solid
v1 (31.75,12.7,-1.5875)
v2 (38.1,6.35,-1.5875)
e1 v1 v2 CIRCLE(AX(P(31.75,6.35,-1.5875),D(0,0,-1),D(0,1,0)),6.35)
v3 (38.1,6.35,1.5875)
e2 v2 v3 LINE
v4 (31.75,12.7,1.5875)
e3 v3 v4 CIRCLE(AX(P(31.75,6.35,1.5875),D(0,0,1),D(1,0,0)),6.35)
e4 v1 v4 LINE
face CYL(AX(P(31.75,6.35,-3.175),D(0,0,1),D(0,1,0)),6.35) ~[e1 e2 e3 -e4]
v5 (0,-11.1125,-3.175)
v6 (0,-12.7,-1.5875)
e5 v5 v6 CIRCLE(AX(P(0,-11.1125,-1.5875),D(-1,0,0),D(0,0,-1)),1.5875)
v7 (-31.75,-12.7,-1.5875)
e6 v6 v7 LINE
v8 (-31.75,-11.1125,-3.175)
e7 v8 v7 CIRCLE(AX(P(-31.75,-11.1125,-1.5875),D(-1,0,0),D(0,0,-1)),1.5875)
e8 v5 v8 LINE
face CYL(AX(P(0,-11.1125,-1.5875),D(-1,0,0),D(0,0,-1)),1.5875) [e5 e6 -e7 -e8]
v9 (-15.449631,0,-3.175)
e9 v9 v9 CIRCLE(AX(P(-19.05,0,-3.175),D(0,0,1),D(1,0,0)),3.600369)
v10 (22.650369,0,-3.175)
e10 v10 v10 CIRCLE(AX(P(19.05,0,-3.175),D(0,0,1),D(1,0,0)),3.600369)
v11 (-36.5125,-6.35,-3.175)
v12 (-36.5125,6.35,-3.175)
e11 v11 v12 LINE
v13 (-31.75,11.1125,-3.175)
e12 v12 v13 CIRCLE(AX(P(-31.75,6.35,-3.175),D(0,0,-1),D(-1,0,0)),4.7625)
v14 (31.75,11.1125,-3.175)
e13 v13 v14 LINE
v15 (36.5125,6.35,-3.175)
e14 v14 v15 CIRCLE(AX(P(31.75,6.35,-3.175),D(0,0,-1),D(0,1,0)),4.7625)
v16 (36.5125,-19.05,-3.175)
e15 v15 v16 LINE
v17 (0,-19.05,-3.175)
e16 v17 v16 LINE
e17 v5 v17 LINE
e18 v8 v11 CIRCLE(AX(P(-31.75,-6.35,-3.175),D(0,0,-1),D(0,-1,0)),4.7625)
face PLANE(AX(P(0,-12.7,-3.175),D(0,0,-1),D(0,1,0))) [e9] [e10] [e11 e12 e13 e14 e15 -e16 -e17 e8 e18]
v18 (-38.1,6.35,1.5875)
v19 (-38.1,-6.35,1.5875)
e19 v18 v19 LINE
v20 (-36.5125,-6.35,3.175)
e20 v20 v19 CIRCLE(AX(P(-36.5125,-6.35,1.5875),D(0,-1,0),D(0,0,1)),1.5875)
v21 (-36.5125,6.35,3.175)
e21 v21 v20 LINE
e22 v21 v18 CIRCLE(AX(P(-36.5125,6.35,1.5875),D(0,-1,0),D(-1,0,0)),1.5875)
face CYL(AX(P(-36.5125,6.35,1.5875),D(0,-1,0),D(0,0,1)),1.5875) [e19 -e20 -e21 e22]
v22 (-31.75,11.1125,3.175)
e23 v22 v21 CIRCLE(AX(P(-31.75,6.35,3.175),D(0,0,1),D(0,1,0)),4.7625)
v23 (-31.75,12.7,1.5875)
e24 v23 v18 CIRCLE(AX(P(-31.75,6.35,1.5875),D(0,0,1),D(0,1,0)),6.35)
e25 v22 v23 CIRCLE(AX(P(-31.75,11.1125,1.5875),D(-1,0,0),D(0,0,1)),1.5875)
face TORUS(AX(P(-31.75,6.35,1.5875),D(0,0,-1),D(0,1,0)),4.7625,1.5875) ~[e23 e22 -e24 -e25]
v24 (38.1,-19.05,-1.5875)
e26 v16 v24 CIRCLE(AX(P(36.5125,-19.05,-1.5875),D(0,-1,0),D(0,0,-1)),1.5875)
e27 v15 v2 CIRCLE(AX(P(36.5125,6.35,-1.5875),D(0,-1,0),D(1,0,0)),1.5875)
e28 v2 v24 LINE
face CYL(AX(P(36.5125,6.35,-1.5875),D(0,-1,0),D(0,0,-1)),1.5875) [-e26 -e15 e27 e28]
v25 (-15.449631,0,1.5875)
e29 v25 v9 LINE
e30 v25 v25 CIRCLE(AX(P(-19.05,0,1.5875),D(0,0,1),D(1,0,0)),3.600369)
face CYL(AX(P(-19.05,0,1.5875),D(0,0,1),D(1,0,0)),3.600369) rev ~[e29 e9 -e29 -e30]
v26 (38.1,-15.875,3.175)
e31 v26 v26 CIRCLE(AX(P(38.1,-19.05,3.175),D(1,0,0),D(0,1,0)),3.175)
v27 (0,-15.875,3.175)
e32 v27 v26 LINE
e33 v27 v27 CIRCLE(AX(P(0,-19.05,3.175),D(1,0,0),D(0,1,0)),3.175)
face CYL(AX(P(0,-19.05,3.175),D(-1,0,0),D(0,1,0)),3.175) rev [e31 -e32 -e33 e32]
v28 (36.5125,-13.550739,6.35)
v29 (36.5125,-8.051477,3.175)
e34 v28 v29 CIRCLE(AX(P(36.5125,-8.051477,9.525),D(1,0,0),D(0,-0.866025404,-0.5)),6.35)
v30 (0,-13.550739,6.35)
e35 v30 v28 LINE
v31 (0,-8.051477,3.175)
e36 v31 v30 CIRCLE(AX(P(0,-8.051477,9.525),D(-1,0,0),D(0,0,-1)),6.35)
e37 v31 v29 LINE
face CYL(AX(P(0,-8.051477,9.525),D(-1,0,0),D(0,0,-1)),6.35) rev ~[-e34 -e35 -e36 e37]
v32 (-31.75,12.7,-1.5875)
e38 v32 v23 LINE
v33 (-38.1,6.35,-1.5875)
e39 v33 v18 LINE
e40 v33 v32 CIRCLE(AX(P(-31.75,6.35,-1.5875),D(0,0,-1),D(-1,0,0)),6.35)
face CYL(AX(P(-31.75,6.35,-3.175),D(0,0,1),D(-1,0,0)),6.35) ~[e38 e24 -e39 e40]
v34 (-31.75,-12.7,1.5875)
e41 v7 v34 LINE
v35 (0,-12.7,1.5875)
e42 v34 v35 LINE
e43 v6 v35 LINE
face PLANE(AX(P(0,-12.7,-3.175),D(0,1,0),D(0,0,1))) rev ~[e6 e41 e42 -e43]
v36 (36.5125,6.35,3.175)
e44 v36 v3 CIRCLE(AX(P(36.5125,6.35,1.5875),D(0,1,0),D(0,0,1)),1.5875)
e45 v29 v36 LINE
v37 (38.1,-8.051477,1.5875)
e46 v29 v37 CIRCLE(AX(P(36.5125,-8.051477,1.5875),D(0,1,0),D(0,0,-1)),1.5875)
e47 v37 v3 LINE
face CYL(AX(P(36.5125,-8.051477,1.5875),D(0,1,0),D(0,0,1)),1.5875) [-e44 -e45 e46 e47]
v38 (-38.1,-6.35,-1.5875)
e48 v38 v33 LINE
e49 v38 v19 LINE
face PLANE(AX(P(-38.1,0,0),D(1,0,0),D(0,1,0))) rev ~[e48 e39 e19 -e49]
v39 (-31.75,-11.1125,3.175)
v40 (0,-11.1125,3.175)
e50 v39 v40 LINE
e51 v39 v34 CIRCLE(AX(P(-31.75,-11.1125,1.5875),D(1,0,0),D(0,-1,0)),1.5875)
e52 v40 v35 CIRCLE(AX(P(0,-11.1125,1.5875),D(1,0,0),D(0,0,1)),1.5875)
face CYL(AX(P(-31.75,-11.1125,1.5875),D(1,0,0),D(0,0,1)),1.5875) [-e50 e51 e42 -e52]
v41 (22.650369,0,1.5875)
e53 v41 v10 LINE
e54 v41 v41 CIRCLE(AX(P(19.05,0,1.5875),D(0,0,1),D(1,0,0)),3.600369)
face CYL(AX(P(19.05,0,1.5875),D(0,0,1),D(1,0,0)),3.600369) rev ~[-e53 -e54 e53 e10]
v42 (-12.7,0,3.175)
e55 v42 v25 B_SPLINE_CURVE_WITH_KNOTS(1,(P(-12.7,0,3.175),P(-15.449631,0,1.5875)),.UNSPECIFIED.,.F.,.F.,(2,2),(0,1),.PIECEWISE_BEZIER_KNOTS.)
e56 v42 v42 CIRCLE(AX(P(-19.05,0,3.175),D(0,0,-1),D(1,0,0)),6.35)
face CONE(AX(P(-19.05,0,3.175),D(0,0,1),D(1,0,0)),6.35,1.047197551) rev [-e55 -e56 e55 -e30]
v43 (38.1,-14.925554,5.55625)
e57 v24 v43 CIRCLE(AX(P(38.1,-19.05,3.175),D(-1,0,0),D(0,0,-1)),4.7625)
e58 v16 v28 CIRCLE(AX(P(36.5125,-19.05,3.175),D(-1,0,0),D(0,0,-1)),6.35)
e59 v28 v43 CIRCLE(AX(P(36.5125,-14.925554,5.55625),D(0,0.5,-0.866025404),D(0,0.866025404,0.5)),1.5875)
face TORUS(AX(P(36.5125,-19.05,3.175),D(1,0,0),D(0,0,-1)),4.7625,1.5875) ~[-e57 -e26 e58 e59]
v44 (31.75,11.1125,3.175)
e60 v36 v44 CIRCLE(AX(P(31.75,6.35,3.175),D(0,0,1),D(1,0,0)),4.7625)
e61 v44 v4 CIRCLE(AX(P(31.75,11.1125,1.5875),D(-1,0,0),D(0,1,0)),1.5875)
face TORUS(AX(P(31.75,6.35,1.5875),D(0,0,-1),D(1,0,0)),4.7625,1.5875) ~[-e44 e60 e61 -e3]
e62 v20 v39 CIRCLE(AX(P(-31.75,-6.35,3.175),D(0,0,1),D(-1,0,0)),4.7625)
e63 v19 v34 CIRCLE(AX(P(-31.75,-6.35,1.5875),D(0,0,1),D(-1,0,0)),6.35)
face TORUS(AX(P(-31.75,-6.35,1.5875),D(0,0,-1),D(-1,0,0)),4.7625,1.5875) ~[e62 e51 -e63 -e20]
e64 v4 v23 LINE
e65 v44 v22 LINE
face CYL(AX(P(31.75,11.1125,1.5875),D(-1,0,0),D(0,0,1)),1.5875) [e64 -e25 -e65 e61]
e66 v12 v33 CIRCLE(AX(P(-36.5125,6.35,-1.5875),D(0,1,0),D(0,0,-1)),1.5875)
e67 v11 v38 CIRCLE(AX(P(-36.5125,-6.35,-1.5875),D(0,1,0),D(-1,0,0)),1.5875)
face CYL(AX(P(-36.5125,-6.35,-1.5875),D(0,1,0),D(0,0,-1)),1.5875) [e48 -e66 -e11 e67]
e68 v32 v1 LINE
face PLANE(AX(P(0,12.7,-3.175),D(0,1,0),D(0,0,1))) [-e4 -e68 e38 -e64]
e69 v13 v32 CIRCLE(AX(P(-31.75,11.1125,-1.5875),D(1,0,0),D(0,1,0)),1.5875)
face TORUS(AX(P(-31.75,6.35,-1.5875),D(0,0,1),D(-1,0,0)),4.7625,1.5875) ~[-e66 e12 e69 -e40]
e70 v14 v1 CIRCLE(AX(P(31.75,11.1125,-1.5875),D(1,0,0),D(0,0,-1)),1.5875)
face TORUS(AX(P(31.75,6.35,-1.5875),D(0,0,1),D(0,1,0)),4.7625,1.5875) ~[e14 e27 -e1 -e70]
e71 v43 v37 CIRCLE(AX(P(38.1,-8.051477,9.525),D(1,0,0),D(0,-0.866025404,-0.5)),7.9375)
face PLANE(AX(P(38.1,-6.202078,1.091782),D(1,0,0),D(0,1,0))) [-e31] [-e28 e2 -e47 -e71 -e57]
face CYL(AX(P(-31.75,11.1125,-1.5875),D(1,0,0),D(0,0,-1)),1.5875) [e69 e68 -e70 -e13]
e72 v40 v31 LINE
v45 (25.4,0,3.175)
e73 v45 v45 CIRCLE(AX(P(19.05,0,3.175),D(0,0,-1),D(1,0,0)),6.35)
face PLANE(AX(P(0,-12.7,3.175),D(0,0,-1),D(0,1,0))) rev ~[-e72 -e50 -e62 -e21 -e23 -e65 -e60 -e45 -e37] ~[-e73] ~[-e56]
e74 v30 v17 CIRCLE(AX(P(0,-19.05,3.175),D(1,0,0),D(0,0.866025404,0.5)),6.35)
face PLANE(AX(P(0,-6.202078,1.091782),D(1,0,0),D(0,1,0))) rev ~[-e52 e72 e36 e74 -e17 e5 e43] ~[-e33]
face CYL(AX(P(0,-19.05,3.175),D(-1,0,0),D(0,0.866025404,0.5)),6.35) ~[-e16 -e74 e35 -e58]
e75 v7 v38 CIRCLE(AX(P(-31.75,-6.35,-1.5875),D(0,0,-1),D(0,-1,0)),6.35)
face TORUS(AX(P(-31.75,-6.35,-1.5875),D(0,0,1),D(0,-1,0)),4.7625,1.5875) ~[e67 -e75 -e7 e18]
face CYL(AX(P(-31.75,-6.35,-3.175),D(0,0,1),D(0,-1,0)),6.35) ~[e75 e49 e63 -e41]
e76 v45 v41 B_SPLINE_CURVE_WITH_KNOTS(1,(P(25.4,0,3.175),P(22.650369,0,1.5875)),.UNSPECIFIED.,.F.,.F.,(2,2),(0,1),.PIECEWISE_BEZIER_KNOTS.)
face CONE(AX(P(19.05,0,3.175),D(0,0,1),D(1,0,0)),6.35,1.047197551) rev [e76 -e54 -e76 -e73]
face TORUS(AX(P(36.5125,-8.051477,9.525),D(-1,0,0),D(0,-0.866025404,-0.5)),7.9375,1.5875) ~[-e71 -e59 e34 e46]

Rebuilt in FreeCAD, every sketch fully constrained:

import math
import FreeCAD as App
import Part
import Sketcher
from FreeCAD import Vector
Q = App.Units.Quantity


def edges_at(feature, points):
    """Names of the edges that pass closest to the given points."""
    edges = feature.Shape.Edges
    near = lambda p: min(range(len(edges)), key=lambda i: edges[i].distToShape(Part.Vertex(*p))[0])
    return sorted({f"Edge{near(p) + 1}" for p in points})


def add_polygon(sketch, points):
    """Adds a closed chain of lines whose ends are joined by coincident constraints."""
    first, n = sketch.GeometryCount, len(points)
    for a, b in zip(points, points[1:] + points[:1]):
        sketch.addGeometry(Part.LineSegment(App.Vector(*a, 0), App.Vector(*b, 0)), False)
    for i in range(n):
        sketch.addConstraint(Sketcher.Constraint("Coincident", first + i, 2, first + (i + 1) % n, 1))

doc = App.newDocument("Part")
body = doc.addObject("PartDesign::Body", "Body")

# Sketch on YZ plane
sketch1 = body.newObject("Sketcher::SketchObject", "Sketch")
sketch1.AttachmentSupport = (doc.getObject("YZ_Plane"), [""])
sketch1.MapMode = "FlatFace"
sketch1.addGeometry([
    Part.LineSegment(Vector(12.7, -3.2, 0), Vector(12.7, 3.2, 0)),  # 0
    Part.LineSegment(Vector(12.7, 3.2, 0), Vector(-8.1, 3.2, 0)),  # 1
    Part.ArcOfCircle(Part.Circle(Vector(-8.1, 9.5, 0), Vector(0, 0, 1), 6.3), math.radians(-150), math.radians(-90)),  # 2
    Part.ArcOfCircle(Part.Circle(Vector(-19.1, 3.2, 0), Vector(0, 0, 1), 6.3), math.radians(30), math.radians(270)),  # 3
    Part.LineSegment(Vector(-19.1, -3.2, 0), Vector(12.7, -3.2, 0)),  # 4
    Part.Circle(Vector(-19.1, 3.2, 0), Vector(0, 0, 1), 3.2),  # 5
], False)
sketch1.addConstraint([
    Sketcher.Constraint("Coincident", 0, 2, 1, 1),
    Sketcher.Constraint("Tangent", 1, 2, 2, 2),
    Sketcher.Constraint("Tangent", 2, 1, 3, 1),
    Sketcher.Constraint("Tangent", 3, 2, 4, 1),
    Sketcher.Constraint("Coincident", 4, 2, 0, 1),
    Sketcher.Constraint("Vertical", 0),
    Sketcher.Constraint("Horizontal", 1),
    Sketcher.Constraint("Horizontal", 4),
    Sketcher.Constraint("Coincident", 5, 3, 3, 3),
    Sketcher.Constraint("Equal", 2, 3),
    Sketcher.Constraint("Horizontal", 5, 3, 0, 2),
    Sketcher.Constraint("Diameter", 5, Q("0.25 in")),
    Sketcher.Constraint("Radius", 2, Q("0.25 in")),
    Sketcher.Constraint("DistanceX", 4, 1, 4, 2, Q("1.25 in")),
    Sketcher.Constraint("DistanceX", -1, 1, 0, 2, Q("0.5 in")),
    Sketcher.Constraint("DistanceY", -1, 1, 2, 1, Q("0.25 in")),
])
pad1 = body.newObject("PartDesign::Pad", "Pad")
pad1.Profile = sketch1
pad1.Length = Q("1.5 in")

# Sketch on YZ plane
sketch2 = body.newObject("Sketcher::SketchObject", "Sketch001")
sketch2.AttachmentSupport = (doc.getObject("YZ_Plane"), [""])
sketch2.MapMode = "FlatFace"
add_polygon(sketch2, [(-13, 3), (-13, -3), (13, -3), (13, 3)])  # lines 0-3
sketch2.addConstraint([
    Sketcher.Constraint("Vertical", 0),
    Sketcher.Constraint("Horizontal", 1),
    Sketcher.Constraint("Vertical", 2),
    Sketcher.Constraint("Horizontal", 3),
    Sketcher.Constraint("Symmetric", 0, 2, 2, 2, -1, 1),
    Sketcher.Constraint("DistanceX", 1, 1, 1, 2, Q("1 in")),
    Sketcher.Constraint("DistanceY", 0, 2, 0, 1, Q("0.25 in")),
])
pad2 = body.newObject("PartDesign::Pad", "Pad001")
pad2.Profile = sketch2
pad2.Length = Q("1.5 in")
pad2.Reversed = True

# Sketch on XY plane
sketch3 = body.newObject("Sketcher::SketchObject", "Sketch002")
sketch3.AttachmentSupport = (doc.getObject("XY_Plane"), [""])
sketch3.MapMode = "FlatFace"
sketch3.AttachmentOffset = App.Placement(Vector(0, 0, 0.125 * 25.4), App.Rotation())
sketch3.addGeometry([
    Part.Circle(Vector(19, 0, 0), Vector(0, 0, 1), 6),
    Part.Circle(Vector(-19, 0, 0), Vector(0, 0, 1), 6),
], False)
sketch3.addConstraint([
    Sketcher.Constraint("Equal", 0, 1),
    Sketcher.Constraint("Symmetric", 0, 3, 1, 3, -1, 1),
    Sketcher.Constraint("PointOnObject", 0, 3, -1),
    Sketcher.Constraint("Diameter", 0, Q("0.5 in")),
    Sketcher.Constraint("DistanceX", 1, 3, 0, 3, Q("1.5 in")),
])
pocket1 = body.newObject("PartDesign::Pocket", "Pocket")
pocket1.Profile = sketch3
pocket1.Length = Q("0.0625 in")
pocket1.TaperAngle = -60

# Sketch on XY plane
sketch4 = body.newObject("Sketcher::SketchObject", "Sketch003")
sketch4.AttachmentSupport = (doc.getObject("XY_Plane"), [""])
sketch4.MapMode = "FlatFace"
sketch4.AttachmentOffset = App.Placement(Vector(0, 0, 0.0625 * 25.4), App.Rotation())
sketch4.addGeometry([
    Part.Circle(Vector(19.1, 0, 0), Vector(0, 0, 1), 3.6),
    Part.Circle(Vector(-19.1, 0, 0), Vector(0, 0, 1), 3.6),
], False)
sketch4.addConstraint([
    Sketcher.Constraint("Equal", 0, 1),
    Sketcher.Constraint("Symmetric", 0, 3, 1, 3, -1, 1),
    Sketcher.Constraint("PointOnObject", 0, 3, -1),
    Sketcher.Constraint("DistanceX", 1, 3, 0, 3, Q("1.5 in")),
    Sketcher.Constraint("Diameter", 0, Q("7.200739 mm")),
])
pocket2 = body.newObject("PartDesign::Pocket", "Pocket001")
pocket2.Profile = sketch4
pocket2.Type = "ThroughAll"
doc.recompute()

fillet = body.newObject("PartDesign::Fillet", "Fillet")
fillet.Base = (pocket2, edges_at(pocket2, [(38.1, 12.7, 0), (-38.1, 12.7, 0), (-38.1, -12.7, 0)]))
fillet.Radius = Q("0.25 in")
doc.recompute()

fillet2 = body.newObject("PartDesign::Fillet", "Fillet001")
fillet2.Base = (fillet, edges_at(fillet, [(0, 12.7, 3.175), (36.24, 10.84, 3.175)]))
fillet2.Radius = Q("0.0625 in")

doc.recompute()
